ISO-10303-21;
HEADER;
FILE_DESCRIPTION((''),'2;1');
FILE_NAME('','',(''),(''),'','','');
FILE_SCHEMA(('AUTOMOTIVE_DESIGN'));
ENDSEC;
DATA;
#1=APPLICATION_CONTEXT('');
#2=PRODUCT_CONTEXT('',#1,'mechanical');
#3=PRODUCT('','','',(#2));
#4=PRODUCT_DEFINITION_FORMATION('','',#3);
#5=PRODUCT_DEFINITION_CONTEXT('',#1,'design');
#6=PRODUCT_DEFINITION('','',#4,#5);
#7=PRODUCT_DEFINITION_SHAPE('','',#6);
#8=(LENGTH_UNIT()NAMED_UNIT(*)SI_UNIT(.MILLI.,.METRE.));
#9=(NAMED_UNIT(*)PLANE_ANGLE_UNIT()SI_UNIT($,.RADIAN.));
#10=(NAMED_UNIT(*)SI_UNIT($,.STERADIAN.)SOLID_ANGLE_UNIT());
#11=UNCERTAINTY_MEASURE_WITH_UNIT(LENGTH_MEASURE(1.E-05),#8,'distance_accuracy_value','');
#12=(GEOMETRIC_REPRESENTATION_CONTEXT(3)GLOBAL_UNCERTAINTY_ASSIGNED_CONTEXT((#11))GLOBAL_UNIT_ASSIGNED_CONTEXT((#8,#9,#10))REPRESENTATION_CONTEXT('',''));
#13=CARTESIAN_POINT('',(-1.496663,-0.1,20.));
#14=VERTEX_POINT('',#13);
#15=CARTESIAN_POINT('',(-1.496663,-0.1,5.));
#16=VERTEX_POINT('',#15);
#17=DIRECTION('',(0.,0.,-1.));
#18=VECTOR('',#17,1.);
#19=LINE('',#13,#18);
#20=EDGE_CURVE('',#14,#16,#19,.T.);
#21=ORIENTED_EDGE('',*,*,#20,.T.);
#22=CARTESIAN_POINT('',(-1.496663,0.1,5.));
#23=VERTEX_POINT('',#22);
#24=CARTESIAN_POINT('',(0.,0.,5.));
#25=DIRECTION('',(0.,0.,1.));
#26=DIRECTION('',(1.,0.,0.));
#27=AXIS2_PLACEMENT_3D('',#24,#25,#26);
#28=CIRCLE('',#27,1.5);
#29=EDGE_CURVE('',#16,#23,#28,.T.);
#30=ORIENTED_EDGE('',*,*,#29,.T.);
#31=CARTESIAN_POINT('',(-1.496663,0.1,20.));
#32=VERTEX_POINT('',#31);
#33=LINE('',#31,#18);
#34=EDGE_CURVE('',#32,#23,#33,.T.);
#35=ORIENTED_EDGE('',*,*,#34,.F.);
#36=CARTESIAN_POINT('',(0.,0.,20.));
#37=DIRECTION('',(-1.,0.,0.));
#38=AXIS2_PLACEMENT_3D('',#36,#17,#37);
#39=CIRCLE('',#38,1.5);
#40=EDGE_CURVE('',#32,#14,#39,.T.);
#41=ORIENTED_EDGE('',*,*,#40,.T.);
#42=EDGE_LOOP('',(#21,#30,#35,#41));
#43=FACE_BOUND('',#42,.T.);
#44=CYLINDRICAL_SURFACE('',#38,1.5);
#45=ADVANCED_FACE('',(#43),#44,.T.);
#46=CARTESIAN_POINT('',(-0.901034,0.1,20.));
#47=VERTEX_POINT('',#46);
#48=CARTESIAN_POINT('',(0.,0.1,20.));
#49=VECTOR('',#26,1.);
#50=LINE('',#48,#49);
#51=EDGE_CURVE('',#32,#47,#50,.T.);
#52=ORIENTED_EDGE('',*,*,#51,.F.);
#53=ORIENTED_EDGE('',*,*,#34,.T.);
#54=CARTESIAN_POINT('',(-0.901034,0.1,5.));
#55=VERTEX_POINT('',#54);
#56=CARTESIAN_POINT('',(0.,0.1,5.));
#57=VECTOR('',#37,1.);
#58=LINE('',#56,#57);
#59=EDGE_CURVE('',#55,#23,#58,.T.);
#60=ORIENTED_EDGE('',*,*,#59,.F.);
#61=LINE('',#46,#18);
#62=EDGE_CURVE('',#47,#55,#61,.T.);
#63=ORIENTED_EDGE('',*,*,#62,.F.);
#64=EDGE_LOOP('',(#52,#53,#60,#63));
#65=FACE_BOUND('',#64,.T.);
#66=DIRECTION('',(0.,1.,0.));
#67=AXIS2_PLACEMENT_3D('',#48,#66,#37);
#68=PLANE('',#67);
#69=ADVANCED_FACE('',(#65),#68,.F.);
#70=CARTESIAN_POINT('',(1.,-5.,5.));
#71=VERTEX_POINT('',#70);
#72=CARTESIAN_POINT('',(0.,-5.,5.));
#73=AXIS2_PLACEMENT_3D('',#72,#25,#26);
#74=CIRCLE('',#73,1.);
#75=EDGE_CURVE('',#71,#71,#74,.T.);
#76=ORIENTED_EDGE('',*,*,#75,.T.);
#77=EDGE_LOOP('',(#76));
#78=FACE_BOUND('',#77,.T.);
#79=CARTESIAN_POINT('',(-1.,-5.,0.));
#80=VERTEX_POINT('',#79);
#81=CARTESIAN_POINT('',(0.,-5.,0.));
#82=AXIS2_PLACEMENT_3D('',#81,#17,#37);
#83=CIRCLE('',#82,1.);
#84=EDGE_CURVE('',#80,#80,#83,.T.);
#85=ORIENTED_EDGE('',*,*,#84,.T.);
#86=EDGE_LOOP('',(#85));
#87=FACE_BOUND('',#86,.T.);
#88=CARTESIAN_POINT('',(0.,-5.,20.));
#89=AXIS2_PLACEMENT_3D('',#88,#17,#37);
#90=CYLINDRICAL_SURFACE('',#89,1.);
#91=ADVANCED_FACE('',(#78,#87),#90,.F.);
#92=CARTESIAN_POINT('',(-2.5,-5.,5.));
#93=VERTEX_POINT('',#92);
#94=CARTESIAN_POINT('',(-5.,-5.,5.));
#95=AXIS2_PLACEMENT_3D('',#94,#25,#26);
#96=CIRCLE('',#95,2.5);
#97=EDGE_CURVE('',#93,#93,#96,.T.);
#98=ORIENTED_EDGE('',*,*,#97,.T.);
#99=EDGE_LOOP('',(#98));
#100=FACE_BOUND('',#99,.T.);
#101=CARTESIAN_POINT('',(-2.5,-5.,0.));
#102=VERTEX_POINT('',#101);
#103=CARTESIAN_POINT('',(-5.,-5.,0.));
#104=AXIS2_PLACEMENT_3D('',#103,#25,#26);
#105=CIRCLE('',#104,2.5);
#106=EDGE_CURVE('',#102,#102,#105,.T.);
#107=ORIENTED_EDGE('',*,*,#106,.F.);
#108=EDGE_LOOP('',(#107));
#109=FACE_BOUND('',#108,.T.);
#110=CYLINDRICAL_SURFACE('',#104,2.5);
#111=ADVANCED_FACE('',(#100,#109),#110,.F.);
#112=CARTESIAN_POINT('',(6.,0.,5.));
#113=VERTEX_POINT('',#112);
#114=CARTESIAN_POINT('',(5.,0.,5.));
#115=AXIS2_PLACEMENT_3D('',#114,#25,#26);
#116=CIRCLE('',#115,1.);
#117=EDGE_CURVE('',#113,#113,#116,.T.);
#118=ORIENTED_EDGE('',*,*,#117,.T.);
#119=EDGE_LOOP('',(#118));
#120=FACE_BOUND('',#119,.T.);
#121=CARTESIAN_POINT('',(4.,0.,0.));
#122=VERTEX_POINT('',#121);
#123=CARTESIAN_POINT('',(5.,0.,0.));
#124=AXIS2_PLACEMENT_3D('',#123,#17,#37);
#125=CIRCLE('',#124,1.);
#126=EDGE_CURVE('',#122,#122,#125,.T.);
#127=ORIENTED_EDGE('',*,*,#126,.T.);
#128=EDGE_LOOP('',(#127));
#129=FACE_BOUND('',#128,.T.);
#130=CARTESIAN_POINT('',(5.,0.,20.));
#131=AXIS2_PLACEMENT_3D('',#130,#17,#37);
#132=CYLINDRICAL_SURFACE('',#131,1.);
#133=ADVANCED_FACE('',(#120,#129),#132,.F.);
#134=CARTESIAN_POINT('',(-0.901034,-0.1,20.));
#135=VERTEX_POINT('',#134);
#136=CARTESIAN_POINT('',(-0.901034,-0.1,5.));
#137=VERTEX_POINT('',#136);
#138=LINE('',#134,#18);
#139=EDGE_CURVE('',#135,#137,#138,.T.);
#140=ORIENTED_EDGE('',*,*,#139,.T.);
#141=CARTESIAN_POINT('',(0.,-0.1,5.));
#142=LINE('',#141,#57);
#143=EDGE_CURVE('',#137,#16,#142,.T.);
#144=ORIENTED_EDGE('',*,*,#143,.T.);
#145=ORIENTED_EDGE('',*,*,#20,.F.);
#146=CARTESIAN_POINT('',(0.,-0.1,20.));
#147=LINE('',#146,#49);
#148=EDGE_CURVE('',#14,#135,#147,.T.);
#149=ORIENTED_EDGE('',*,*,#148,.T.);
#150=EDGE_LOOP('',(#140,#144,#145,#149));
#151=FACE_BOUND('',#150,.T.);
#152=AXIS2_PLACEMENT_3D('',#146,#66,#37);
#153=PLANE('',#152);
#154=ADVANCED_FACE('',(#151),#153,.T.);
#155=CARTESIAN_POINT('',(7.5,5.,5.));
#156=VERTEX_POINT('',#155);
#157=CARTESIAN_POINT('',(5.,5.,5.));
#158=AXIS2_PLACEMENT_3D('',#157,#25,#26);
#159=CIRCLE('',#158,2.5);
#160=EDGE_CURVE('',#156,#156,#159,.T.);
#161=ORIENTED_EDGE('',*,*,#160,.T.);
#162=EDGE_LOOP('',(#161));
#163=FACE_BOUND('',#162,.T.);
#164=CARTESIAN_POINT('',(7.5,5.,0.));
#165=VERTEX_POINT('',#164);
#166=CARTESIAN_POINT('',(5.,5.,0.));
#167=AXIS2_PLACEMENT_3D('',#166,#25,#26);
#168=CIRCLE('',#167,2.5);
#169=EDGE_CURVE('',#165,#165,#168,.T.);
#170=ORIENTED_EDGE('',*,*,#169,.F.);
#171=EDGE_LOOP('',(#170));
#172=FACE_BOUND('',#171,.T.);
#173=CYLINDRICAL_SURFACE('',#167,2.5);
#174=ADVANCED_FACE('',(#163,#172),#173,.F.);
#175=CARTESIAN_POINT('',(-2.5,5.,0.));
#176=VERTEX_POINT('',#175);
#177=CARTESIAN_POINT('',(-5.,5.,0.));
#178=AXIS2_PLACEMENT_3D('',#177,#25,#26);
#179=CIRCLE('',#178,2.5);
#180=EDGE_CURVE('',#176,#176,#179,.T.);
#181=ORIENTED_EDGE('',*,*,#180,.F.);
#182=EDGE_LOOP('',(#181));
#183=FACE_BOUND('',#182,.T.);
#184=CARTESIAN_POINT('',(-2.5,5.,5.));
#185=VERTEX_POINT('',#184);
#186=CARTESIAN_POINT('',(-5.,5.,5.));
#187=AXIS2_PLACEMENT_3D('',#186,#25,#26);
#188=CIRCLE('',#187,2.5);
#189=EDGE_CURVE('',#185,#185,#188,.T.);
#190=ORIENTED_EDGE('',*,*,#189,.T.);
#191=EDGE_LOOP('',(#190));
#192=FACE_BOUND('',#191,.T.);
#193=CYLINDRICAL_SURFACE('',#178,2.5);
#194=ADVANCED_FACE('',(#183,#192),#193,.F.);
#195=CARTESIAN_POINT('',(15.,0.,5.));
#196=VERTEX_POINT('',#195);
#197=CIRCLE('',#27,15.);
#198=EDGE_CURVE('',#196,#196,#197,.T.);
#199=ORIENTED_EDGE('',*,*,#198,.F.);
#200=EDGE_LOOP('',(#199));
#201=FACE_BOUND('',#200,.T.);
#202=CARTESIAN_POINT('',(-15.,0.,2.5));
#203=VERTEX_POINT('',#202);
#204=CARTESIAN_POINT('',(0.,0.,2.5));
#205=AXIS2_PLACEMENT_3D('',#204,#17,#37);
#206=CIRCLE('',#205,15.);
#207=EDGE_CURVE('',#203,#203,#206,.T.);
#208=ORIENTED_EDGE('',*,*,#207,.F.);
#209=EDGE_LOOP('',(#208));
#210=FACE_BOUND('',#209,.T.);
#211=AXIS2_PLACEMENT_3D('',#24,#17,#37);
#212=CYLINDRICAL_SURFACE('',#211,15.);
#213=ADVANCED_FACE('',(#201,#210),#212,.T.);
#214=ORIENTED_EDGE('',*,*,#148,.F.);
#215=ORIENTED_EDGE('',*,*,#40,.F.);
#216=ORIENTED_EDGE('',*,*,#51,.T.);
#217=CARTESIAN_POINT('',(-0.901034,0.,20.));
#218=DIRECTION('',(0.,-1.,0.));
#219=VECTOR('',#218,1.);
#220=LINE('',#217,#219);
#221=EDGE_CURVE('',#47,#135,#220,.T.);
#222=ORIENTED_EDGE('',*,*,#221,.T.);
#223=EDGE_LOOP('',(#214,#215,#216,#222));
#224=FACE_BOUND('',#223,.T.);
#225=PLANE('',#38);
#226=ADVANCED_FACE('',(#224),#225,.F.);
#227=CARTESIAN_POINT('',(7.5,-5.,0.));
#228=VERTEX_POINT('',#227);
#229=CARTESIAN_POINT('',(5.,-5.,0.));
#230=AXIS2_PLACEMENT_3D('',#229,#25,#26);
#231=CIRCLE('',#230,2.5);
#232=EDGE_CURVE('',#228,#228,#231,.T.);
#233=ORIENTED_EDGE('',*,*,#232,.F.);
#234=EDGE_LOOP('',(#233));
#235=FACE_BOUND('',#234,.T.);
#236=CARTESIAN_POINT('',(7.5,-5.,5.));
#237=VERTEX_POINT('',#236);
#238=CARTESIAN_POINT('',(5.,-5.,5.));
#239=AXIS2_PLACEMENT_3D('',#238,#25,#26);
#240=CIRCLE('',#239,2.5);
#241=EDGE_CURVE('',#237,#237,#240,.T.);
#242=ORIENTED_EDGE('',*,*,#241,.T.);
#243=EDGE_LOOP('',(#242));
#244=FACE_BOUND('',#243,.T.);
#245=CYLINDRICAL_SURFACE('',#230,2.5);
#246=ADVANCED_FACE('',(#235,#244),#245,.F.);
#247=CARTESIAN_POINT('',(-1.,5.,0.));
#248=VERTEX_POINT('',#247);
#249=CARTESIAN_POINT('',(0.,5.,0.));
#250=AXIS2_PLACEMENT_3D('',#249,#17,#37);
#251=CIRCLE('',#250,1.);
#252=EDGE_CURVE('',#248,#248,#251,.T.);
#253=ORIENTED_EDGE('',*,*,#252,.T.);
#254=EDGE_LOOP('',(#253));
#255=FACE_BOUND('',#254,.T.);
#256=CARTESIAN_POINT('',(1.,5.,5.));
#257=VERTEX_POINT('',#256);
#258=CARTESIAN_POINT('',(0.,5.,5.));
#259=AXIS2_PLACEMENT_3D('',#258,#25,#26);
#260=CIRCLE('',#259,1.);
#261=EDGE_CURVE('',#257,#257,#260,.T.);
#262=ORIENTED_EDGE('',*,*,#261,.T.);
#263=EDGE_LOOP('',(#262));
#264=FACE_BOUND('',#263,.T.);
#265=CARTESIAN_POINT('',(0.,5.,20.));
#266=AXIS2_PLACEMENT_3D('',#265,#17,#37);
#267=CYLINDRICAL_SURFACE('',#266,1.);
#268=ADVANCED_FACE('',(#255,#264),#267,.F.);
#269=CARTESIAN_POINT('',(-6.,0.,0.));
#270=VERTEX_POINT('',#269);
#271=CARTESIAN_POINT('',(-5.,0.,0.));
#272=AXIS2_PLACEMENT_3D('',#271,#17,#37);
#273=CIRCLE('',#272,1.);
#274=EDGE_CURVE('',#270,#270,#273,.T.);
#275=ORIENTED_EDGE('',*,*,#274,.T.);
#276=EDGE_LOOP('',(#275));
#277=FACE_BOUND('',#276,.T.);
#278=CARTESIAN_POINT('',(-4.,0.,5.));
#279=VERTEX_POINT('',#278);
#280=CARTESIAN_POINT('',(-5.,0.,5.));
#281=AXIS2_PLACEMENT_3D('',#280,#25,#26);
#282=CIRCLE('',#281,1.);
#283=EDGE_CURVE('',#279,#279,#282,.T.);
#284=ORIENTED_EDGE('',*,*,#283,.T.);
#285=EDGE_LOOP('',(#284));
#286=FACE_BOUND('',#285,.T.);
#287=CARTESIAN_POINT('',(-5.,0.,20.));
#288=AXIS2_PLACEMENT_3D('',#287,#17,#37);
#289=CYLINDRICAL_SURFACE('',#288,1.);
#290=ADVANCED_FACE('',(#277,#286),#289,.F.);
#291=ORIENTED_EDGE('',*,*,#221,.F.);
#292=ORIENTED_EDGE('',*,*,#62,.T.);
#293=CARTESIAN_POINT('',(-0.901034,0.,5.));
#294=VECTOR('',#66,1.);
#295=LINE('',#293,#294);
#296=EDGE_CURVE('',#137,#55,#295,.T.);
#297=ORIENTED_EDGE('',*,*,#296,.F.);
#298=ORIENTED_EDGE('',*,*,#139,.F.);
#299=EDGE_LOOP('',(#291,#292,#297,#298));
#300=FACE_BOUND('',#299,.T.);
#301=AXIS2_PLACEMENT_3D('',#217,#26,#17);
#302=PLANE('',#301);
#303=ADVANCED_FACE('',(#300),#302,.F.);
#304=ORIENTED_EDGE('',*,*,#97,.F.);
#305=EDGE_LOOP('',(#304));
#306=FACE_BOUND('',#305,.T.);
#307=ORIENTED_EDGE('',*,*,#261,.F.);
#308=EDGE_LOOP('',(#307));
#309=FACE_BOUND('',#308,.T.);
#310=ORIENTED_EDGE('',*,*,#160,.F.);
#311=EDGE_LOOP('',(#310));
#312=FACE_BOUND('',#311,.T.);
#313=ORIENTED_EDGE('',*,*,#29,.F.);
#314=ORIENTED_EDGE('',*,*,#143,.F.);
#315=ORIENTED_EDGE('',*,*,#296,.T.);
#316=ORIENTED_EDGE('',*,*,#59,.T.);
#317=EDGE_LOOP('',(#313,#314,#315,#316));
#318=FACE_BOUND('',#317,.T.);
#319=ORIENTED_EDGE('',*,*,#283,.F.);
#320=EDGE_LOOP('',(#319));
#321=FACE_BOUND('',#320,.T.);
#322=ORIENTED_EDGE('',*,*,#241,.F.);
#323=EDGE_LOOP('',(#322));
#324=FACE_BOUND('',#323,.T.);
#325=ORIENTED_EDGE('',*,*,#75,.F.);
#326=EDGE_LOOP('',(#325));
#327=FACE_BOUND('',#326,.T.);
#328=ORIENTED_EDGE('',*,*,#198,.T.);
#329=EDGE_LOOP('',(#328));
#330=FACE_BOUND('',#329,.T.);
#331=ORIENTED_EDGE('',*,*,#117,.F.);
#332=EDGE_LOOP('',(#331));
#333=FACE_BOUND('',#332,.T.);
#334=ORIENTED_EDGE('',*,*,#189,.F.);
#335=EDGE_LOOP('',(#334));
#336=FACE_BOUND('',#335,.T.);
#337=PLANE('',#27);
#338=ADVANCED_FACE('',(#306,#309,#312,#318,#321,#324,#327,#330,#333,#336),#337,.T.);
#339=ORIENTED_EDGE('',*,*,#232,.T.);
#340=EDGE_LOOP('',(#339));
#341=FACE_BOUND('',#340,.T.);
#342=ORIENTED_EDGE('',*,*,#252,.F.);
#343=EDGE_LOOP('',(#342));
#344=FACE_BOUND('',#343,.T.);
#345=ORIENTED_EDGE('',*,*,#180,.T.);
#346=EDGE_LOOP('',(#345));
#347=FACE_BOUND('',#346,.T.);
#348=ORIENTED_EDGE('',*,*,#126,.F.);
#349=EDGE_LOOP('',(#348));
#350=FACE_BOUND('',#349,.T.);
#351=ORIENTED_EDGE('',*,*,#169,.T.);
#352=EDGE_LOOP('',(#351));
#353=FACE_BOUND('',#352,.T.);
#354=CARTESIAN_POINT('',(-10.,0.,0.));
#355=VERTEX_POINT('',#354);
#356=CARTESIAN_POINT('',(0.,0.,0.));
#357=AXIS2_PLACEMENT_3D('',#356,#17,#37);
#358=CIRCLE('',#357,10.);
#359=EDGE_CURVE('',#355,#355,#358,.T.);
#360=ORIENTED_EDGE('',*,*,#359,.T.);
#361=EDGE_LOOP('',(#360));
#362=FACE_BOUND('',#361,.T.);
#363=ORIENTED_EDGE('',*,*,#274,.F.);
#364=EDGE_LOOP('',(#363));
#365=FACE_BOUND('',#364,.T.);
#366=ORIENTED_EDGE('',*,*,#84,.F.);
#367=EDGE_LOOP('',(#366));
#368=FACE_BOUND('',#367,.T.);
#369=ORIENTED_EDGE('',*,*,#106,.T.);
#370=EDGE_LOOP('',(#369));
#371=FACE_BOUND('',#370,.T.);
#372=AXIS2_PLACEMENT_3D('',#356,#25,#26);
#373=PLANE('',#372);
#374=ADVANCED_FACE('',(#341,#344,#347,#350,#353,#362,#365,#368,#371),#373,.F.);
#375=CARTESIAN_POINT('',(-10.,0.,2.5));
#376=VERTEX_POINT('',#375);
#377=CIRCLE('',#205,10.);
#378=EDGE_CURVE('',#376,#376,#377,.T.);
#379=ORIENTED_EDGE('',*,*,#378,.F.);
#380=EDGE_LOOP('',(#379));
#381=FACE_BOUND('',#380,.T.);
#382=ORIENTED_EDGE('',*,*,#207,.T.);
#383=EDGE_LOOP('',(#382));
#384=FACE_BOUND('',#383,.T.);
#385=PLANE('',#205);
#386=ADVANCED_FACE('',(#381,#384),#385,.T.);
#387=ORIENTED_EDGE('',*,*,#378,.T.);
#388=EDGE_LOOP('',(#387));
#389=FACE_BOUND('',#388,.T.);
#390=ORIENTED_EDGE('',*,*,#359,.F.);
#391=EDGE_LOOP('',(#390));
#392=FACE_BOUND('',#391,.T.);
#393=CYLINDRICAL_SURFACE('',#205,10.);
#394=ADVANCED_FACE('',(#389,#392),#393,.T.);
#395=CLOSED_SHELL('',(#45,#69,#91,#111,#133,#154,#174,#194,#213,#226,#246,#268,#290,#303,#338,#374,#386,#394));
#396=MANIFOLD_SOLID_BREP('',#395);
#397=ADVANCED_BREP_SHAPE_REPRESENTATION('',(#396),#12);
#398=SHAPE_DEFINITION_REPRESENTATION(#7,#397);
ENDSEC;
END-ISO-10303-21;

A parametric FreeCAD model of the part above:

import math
import FreeCAD as App
import Part
import Sketcher
Q = App.Units.Quantity

doc = App.newDocument("Part")
body = doc.addObject("PartDesign::Body", "Body")

# Sketch on XY plane
sketch1 = body.newObject("Sketcher::SketchObject", "Sketch")
sketch1.AttachmentSupport = (doc.getObject("XY_Plane"), [""])
sketch1.MapMode = "FlatFace"
sketch1.addGeometry(Part.Circle(App.Vector(0, 0, 0), App.Vector(0, 0, 1), 15), False)
sketch1.addConstraint([
    Sketcher.Constraint("Coincident", 0, 3, -1, 1),
    Sketcher.Constraint("Diameter", 0, Q("30 mm")),
])
pad1 = body.newObject("PartDesign::Pad", "Pad")
pad1.Profile = sketch1
pad1.Length = 5

# Sketch on XY plane
sketch2 = body.newObject("Sketcher::SketchObject", "Sketch001")
sketch2.AttachmentSupport = (doc.getObject("XY_Plane"), [""])
sketch2.MapMode = "FlatFace"
sketch2.addGeometry([
    Part.Circle(App.Vector(0, 0, 0), App.Vector(0, 0, 1), 15),
    Part.Circle(App.Vector(0, 0, 0), App.Vector(0, 0, 1), 10),
], False)
sketch2.addConstraint([
    Sketcher.Constraint("Coincident", 0, 3, -1, 1),
    Sketcher.Constraint("Coincident", 1, 3, -1, 1),
    Sketcher.Constraint("Diameter", 0, Q("30 mm")),
    Sketcher.Constraint("Diameter", 1, Q("20 mm")),
])
pocket1 = body.newObject("PartDesign::Pocket", "Pocket")
pocket1.Profile = sketch2
pocket1.Length = 2.5
pocket1.Reversed = True

# Sketch on XY plane
sketch3 = body.newObject("Sketcher::SketchObject", "Sketch002")
sketch3.AttachmentSupport = (doc.getObject("XY_Plane"), [""])
sketch3.MapMode = "FlatFace"
sketch3.AttachmentOffset = App.Placement(App.Vector(0, 0, 5), App.Rotation())
sketch3.addGeometry([
    Part.Circle(App.Vector(-5, 5, 0), App.Vector(0, 0, 1), 2.5),
    Part.Circle(App.Vector(5, 5, 0), App.Vector(0, 0, 1), 2.5),
    Part.Circle(App.Vector(5, -5, 0), App.Vector(0, 0, 1), 2.5),
    Part.Circle(App.Vector(-5, -5, 0), App.Vector(0, 0, 1), 2.5),
], False)
sketch3.addConstraint([
    Sketcher.Constraint("Equal", 0, 1),
    Sketcher.Constraint("Equal", 1, 2),
    Sketcher.Constraint("Equal", 2, 3),
    Sketcher.Constraint("Symmetric", 0, 3, 2, 3, -1, 1),
    Sketcher.Constraint("Symmetric", 1, 3, 3, 3, -1, 1),
    Sketcher.Constraint("Symmetric", 0, 3, 1, 3, -2),
    Sketcher.Constraint("Diameter", 0, Q("5 mm")),
    Sketcher.Constraint("DistanceX", 0, 3, -1, 1, Q("5 mm")),
    Sketcher.Constraint("DistanceY", -1, 1, 0, 3, Q("5 mm")),
])
pocket2 = body.newObject("PartDesign::Pocket", "Pocket001")
pocket2.Profile = sketch3
pocket2.Type = "ThroughAll"

# Sketch on XY plane
sketch4 = body.newObject("Sketcher::SketchObject", "Sketch003")
sketch4.AttachmentSupport = (doc.getObject("XY_Plane"), [""])
sketch4.MapMode = "FlatFace"
sketch4.addGeometry([
    Part.LineSegment(App.Vector(-0.9, 0.1, 0), App.Vector(-1.5, 0.1, 0)),
    Part.ArcOfCircle(Part.Circle(App.Vector(0, 0, 0), App.Vector(0, 0, 1), 1.5), math.radians(-176), math.radians(176)),
    Part.LineSegment(App.Vector(-1.5, -0.1, 0), App.Vector(-0.9, -0.1, 0)),
    Part.LineSegment(App.Vector(-0.9, -0.1, 0), App.Vector(-0.9, 0.1, 0)),
], False)
sketch4.addConstraint([
    Sketcher.Constraint("Coincident", 0, 2, 1, 2),
    Sketcher.Constraint("Coincident", 1, 1, 2, 1),
    Sketcher.Constraint("Coincident", 2, 2, 3, 1),
    Sketcher.Constraint("Coincident", 3, 2, 0, 1),
    Sketcher.Constraint("Horizontal", 0),
    Sketcher.Constraint("Horizontal", 2),
    Sketcher.Constraint("Vertical", 3),
    Sketcher.Constraint("Coincident", 1, 3, -1, 1),
    Sketcher.Constraint("Vertical", 0, 2, 1, 1),
    Sketcher.Constraint("Radius", 1, Q("1.5 mm")),
    Sketcher.Constraint("DistanceY", 3, 1, 3, 2, Q("0.2 mm")),
    Sketcher.Constraint("DistanceX", 0, 2, 0, 1, Q("0.595629 mm")),
])
pad2 = body.newObject("PartDesign::Pad", "Pad001")
pad2.Profile = sketch4
pad2.Length = 20

# Sketch on XY plane
sketch5 = body.newObject("Sketcher::SketchObject", "Sketch004")
sketch5.AttachmentSupport = (doc.getObject("XY_Plane"), [""])
sketch5.MapMode = "FlatFace"
sketch5.addGeometry([
    Part.Circle(App.Vector(0, 5, 0), App.Vector(0, 0, 1), 1),
    Part.Circle(App.Vector(-5, 0, 0), App.Vector(0, 0, 1), 1),
    Part.Circle(App.Vector(0, -5, 0), App.Vector(0, 0, 1), 1),
    Part.Circle(App.Vector(5, 0, 0), App.Vector(0, 0, 1), 1),
], False)
sketch5.addConstraint([
    Sketcher.Constraint("Equal", 0, 1),
    Sketcher.Constraint("Equal", 1, 2),
    Sketcher.Constraint("Equal", 2, 3),
    Sketcher.Constraint("Symmetric", 0, 3, 2, 3, -1, 1),
    Sketcher.Constraint("Symmetric", 1, 3, 3, 3, -1, 1),
    Sketcher.Constraint("PointOnObject", 0, 3, -2),
    Sketcher.Constraint("PointOnObject", 1, 3, -1),
    Sketcher.Constraint("Diameter", 0, Q("2 mm")),
    Sketcher.Constraint("DistanceY", -1, 1, 0, 3, Q("5 mm")),
    Sketcher.Constraint("DistanceX", 1, 3, -1, 1, Q("5 mm")),
])
pocket3 = body.newObject("PartDesign::Pocket", "Pocket002")
pocket3.Profile = sketch5
pocket3.Type = "ThroughAll"
pocket3.Reversed = True

doc.recompute()
